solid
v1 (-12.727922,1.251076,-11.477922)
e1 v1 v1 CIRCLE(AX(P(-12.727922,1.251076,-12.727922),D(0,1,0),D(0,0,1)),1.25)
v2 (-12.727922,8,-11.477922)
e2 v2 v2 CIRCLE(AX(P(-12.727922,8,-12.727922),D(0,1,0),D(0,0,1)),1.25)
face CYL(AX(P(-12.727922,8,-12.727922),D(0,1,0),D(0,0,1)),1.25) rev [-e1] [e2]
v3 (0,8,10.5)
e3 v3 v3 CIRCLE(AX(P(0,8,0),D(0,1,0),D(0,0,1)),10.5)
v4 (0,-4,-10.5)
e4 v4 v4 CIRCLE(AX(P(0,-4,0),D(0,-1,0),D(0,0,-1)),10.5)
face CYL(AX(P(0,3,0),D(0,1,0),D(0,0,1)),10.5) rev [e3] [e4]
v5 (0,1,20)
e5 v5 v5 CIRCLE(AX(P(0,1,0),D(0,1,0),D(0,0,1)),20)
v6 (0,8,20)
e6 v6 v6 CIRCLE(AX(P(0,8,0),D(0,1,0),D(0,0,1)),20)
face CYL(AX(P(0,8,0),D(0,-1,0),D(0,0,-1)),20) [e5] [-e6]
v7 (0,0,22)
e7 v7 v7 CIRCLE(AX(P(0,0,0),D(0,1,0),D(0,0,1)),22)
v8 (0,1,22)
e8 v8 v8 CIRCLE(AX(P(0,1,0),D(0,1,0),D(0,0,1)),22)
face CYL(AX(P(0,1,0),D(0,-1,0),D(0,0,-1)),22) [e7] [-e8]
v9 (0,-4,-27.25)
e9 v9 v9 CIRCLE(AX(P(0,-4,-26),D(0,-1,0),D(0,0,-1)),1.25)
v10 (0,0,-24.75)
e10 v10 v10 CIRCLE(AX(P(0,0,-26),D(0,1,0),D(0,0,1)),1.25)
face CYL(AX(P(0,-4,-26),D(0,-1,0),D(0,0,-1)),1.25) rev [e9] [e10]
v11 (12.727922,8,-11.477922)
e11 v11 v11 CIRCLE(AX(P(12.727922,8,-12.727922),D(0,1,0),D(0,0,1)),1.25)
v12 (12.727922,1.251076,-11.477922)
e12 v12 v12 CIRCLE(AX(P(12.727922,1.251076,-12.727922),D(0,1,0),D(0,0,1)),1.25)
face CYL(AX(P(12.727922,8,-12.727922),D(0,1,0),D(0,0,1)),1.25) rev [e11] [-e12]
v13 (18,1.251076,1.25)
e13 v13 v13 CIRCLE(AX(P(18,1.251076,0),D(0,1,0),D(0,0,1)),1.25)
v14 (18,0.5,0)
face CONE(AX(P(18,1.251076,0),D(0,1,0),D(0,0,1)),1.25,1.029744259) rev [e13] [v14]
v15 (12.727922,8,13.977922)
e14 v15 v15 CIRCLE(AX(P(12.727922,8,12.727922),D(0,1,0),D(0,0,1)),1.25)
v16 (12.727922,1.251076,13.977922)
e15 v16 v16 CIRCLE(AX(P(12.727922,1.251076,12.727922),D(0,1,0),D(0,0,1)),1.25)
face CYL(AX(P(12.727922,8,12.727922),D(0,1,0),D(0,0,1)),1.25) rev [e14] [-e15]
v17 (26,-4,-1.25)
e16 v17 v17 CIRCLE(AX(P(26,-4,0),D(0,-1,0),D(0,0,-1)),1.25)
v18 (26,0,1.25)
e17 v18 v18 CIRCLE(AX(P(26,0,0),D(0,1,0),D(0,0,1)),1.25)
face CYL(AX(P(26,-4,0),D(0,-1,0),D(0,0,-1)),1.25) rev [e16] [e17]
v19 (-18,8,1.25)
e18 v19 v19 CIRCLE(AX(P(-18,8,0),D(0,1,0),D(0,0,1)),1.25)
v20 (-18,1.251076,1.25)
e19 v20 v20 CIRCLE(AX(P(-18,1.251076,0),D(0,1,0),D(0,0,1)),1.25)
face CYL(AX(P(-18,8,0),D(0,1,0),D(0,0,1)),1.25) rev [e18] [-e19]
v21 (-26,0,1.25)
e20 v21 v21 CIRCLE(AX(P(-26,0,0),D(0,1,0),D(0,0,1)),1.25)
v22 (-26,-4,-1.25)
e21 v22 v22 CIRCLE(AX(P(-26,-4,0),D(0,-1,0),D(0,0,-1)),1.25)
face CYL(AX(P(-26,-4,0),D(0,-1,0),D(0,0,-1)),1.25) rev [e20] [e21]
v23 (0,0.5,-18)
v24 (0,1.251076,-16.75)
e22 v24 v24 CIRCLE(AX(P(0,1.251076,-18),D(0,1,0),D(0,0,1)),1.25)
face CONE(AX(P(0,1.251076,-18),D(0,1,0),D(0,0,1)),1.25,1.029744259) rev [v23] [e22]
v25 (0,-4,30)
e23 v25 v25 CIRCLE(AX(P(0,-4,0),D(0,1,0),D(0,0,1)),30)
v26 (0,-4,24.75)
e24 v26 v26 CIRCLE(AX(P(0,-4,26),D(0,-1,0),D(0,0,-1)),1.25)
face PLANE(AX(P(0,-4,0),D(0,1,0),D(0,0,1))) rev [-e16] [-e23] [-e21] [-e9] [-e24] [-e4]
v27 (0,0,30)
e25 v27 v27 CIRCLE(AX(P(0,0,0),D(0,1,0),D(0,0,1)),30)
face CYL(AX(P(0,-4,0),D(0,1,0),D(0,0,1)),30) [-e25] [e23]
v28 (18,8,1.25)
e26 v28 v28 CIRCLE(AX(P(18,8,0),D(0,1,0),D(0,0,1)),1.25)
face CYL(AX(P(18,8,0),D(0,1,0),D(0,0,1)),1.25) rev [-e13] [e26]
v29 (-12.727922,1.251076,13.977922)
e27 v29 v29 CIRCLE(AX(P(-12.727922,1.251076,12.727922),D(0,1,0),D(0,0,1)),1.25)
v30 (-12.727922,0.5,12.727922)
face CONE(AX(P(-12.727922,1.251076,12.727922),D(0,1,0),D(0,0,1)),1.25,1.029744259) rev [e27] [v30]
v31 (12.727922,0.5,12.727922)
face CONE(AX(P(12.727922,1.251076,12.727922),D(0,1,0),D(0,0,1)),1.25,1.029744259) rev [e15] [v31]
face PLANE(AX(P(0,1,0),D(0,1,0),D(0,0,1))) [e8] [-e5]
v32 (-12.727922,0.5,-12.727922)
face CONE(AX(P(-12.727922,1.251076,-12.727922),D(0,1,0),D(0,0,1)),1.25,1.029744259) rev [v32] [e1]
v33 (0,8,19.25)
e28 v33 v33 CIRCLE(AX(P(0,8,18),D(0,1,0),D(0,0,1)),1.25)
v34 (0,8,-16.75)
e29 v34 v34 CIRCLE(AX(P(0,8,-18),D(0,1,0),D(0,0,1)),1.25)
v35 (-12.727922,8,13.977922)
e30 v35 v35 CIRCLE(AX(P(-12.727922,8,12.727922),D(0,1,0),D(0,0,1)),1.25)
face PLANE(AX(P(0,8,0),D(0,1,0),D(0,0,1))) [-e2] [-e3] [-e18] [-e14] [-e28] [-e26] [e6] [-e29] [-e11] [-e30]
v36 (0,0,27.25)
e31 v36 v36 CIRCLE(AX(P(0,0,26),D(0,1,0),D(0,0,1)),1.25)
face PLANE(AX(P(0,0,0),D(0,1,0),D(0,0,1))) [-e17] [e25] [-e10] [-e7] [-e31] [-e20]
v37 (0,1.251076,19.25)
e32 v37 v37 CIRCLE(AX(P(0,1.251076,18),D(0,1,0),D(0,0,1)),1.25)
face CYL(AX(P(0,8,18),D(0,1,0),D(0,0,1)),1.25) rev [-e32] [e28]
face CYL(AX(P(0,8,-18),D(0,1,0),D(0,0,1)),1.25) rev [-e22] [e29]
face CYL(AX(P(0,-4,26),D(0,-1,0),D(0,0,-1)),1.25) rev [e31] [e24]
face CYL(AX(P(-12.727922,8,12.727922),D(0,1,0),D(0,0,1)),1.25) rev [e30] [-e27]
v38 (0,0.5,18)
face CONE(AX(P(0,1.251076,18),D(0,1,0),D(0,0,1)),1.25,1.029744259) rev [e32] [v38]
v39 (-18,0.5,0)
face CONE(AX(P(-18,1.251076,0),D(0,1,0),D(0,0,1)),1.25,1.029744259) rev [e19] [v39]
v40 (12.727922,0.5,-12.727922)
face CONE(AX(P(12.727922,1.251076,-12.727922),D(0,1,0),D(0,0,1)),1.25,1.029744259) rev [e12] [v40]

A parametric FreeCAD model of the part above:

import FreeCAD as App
import Part
import Sketcher

doc = App.newDocument("Part")
body = doc.addObject("PartDesign::Body", "Body")

# Sketch on XZ plane
sketch1 = body.newObject("Sketcher::SketchObject", "Sketch")
sketch1.AttachmentSupport = (doc.getObject("XZ_Plane"), [""])
sketch1.MapMode = "FlatFace"
sketch1.addGeometry(Part.Circle(App.Vector(0, 0, 0), App.Vector(0, 0, 1), 30), False)
sketch1.addConstraint([
    Sketcher.Constraint("Coincident", 0, 3, -1, 1),
    Sketcher.Constraint("Diameter", 0, 60.0),
])
pad1 = body.newObject("PartDesign::Pad", "Pad")
pad1.Profile = sketch1
pad1.Length = 4

# Sketch on XZ plane
sketch2 = body.newObject("Sketcher::SketchObject", "Sketch001")
sketch2.AttachmentSupport = (doc.getObject("XZ_Plane"), [""])
sketch2.MapMode = "FlatFace"
sketch2.addGeometry(Part.Circle(App.Vector(0, 0, 0), App.Vector(0, 0, 1), 22), False)
sketch2.addConstraint([
    Sketcher.Constraint("Coincident", 0, 3, -1, 1),
    Sketcher.Constraint("Diameter", 0, 44.0),
])
pad2 = body.newObject("PartDesign::Pad", "Pad001")
pad2.Profile = sketch2
pad2.Length = 1
pad2.Reversed = True

# Sketch on XZ plane
sketch3 = body.newObject("Sketcher::SketchObject", "Sketch002")
sketch3.AttachmentSupport = (doc.getObject("XZ_Plane"), [""])
sketch3.MapMode = "FlatFace"
sketch3.AttachmentOffset = App.Placement(App.Vector(0, 0, -1), App.Rotation())
sketch3.addGeometry(Part.Circle(App.Vector(0, 0, 0), App.Vector(0, 0, 1), 20), False)
sketch3.addConstraint([
    Sketcher.Constraint("Coincident", 0, 3, -1, 1),
    Sketcher.Constraint("Diameter", 0, 40.0),
])
pad3 = body.newObject("PartDesign::Pad", "Pad002")
pad3.Profile = sketch3
pad3.Length = 7
pad3.Reversed = True

# Sketch on XZ plane
sketch4 = body.newObject("Sketcher::SketchObject", "Sketch003")
sketch4.AttachmentSupport = (doc.getObject("XZ_Plane"), [""])
sketch4.MapMode = "FlatFace"
sketch4.AttachmentOffset = App.Placement(App.Vector(0, 0, -8), App.Rotation())
sketch4.addGeometry(Part.Circle(App.Vector(0, 0, 0), App.Vector(0, 0, 1), 10), False)
sketch4.addConstraint([
    Sketcher.Constraint("Coincident", 0, 3, -1, 1),
    Sketcher.Constraint("Diameter", 0, 21.0),
])
pocket1 = body.newObject("PartDesign::Pocket", "Pocket")
pocket1.Profile = sketch4
pocket1.Length = 5
pocket1.Reversed = True

# Sketch on XZ plane
sketch5 = body.newObject("Sketcher::SketchObject", "Sketch004")
sketch5.AttachmentSupport = (doc.getObject("XZ_Plane"), [""])
sketch5.MapMode = "FlatFace"
sketch5.AttachmentOffset = App.Placement(App.Vector(0, 0, 4), App.Rotation())
sketch5.addGeometry(Part.Circle(App.Vector(0, 0, 0), App.Vector(0, 0, 1), 10), False)
sketch5.addConstraint([
    Sketcher.Constraint("Coincident", 0, 3, -1, 1),
    Sketcher.Constraint("Diameter", 0, 21.0),
])
pocket2 = body.newObject("PartDesign::Pocket", "Pocket001")
pocket2.Profile = sketch5
pocket2.Length = 7

# Sketch on XZ plane
sketch6 = body.newObject("Sketcher::SketchObject", "Sketch005")
sketch6.AttachmentSupport = (doc.getObject("XZ_Plane"), [""])
sketch6.MapMode = "FlatFace"
sketch6.AttachmentOffset = App.Placement(App.Vector(0, 0, -8), App.Rotation())
sketch6.addGeometry([
    Part.Circle(App.Vector(12.7, -12.7, 0), App.Vector(0, 0, 1), 1.2),  # 0
    Part.Circle(App.Vector(18, 0, 0), App.Vector(0, 0, 1), 1.2),  # 1
    Part.Circle(App.Vector(12.7, 12.7, 0), App.Vector(0, 0, 1), 1.2),  # 2
    Part.Circle(App.Vector(0, 18, 0), App.Vector(0, 0, 1), 1.2),  # 3
    Part.Circle(App.Vector(-12.7, 12.7, 0), App.Vector(0, 0, 1), 1.2),  # 4
    Part.Circle(App.Vector(-18, 0, 0), App.Vector(0, 0, 1), 1.2),  # 5
    Part.Circle(App.Vector(-12.7, -12.7, 0), App.Vector(0, 0, 1), 1.2),  # 6
    Part.Circle(App.Vector(0, -18, 0), App.Vector(0, 0, 1), 1.2),  # 7
    Part.Circle(App.Vector(0, 0, 0), App.Vector(0, 0, 1), 1.2),  # 8
], False)
sketch6.addConstraint([
    Sketcher.Constraint("Coincident", 8, 3, -1, 1),
    Sketcher.Constraint("Equal", 0, 1),
    Sketcher.Constraint("Equal", 1, 2),
    Sketcher.Constraint("Equal", 2, 3),
    Sketcher.Constraint("Equal", 3, 4),
    Sketcher.Constraint("Equal", 4, 5),
    Sketcher.Constraint("Equal", 5, 6),
    Sketcher.Constraint("Equal", 6, 7),
    Sketcher.Constraint("Equal", 7, 8),
    Sketcher.Constraint("Symmetric", 0, 3, 4, 3, -1, 1),
    Sketcher.Constraint("Symmetric", 1, 3, 5, 3, -1, 1),
    Sketcher.Constraint("Symmetric", 2, 3, 6, 3, -1, 1),
    Sketcher.Constraint("Symmetric", 3, 3, 7, 3, -1, 1),
    Sketcher.Constraint("Symmetric", 2, 3, 4, 3, -2),
    Sketcher.Constraint("PointOnObject", 1, 3, -1),
    Sketcher.Constraint("PointOnObject", 3, 3, -2),
    Sketcher.Constraint("Diameter", 0, 2.5),
    Sketcher.Constraint("DistanceX", -1, 1, 1, 3, 18.0),
    Sketcher.Constraint("DistanceY", -1, 1, 3, 3, 18.0),
    Sketcher.Constraint("DistanceX", -1, 1, 0, 3, 12.727922),
    Sketcher.Constraint("DistanceY", 0, 3, -1, 1, 12.727922),
])
doc.recompute()
hole = body.newObject("PartDesign::Hole", "Hole")
hole.Profile = sketch6
hole.ThreadType = "None"
hole.Diameter = 2.5
hole.DepthType = "Dimension"
hole.Depth = 6.748924
hole.DrillPoint = "Angled"
hole.DrillPointAngle = 118
hole.Reversed = True

# Sketch on XZ plane
sketch7 = body.newObject("Sketcher::SketchObject", "Sketch006")
sketch7.AttachmentSupport = (doc.getObject("XZ_Plane"), [""])
sketch7.MapMode = "FlatFace"
sketch7.AttachmentOffset = App.Placement(App.Vector(0, 0, 4), App.Rotation())
sketch7.addGeometry([
    Part.Circle(App.Vector(-26, 0, 0), App.Vector(0, 0, 1), 1.2),
    Part.Circle(App.Vector(0, 26, 0), App.Vector(0, 0, 1), 1.2),
    Part.Circle(App.Vector(26, 0, 0), App.Vector(0, 0, 1), 1.2),
    Part.Circle(App.Vector(0, -26, 0), App.Vector(0, 0, 1), 1.2),
], False)
sketch7.addConstraint([
    Sketcher.Constraint("Equal", 0, 1),
    Sketcher.Constraint("Equal", 1, 2),
    Sketcher.Constraint("Equal", 2, 3),
    Sketcher.Constraint("Symmetric", 0, 3, 2, 3, -1, 1),
    Sketcher.Constraint("Symmetric", 1, 3, 3, 3, -1, 1),
    Sketcher.Constraint("PointOnObject", 0, 3, -1),
    Sketcher.Constraint("PointOnObject", 1, 3, -2),
    Sketcher.Constraint("Diameter", 0, 2.5),
    Sketcher.Constraint("DistanceX", 0, 3, -1, 1, 26.0),
    Sketcher.Constraint("DistanceY", -1, 1, 1, 3, 26.0),
])
doc.recompute()
hole2 = body.newObject("PartDesign::Hole", "Hole001")
hole2.Profile = sketch7
hole2.ThreadType = "None"
hole2.Diameter = 2.5
hole2.DepthType = "ThroughAll"

doc.recompute()
